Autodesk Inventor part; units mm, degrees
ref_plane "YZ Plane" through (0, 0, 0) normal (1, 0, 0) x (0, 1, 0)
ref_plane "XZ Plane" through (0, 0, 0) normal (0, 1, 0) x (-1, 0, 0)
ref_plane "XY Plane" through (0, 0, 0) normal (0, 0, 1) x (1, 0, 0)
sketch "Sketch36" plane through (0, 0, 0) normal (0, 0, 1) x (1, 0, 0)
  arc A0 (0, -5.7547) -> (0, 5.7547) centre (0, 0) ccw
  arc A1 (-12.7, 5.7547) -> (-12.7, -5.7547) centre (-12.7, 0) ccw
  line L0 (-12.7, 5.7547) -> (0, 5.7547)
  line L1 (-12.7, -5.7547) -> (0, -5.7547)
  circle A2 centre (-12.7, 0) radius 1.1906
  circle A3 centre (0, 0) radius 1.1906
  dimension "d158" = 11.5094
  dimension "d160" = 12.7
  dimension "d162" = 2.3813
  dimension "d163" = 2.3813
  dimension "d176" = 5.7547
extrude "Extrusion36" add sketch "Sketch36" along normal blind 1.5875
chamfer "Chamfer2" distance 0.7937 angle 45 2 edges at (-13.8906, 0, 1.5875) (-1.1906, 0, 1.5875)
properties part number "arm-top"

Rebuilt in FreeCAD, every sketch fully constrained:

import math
import FreeCAD as App
import Part
import Sketcher
Q = App.Units.Quantity


def edges_at(feature, points):
    """Names of the edges that pass closest to the given points."""
    edges = feature.Shape.Edges
    near = lambda p: min(range(len(edges)), key=lambda i: edges[i].distToShape(Part.Vertex(*p))[0])
    return sorted({f"Edge{near(p) + 1}" for p in points})

doc = App.newDocument("Part")
body = doc.addObject("PartDesign::Body", "Body")

sketch1 = body.newObject("Sketcher::SketchObject", "Sketch")
sketch1.AttachmentSupport = (doc.getObject("XY_Plane"), [""])
sketch1.MapMode = "FlatFace"
sketch1.addGeometry([
    Part.LineSegment(App.Vector(-12.7, -5.7547, 0), App.Vector(0, -5.7547, 0)),
    Part.ArcOfCircle(Part.Circle(App.Vector(0, 0, 0), App.Vector(0, 0, 1), 5.7547), math.radians(-90), math.radians(90)),
    Part.LineSegment(App.Vector(0, 5.7547, 0), App.Vector(-12.7, 5.7547, 0)),
    Part.ArcOfCircle(Part.Circle(App.Vector(-12.7, 0, 0), App.Vector(0, 0, 1), 5.7547), math.radians(90), math.radians(270)),
    Part.Circle(App.Vector(-12.7, 0, 0), App.Vector(0, 0, 1), 1.1906),
    Part.Circle(App.Vector(0, 0, 0), App.Vector(0, 0, 1), 1.1906),
], False)
sketch1.addConstraint([
    Sketcher.Constraint("Tangent", 0, 2, 1, 1),
    Sketcher.Constraint("Tangent", 1, 2, 2, 1),
    Sketcher.Constraint("Tangent", 2, 2, 3, 1),
    Sketcher.Constraint("Tangent", 3, 2, 0, 1),
    Sketcher.Constraint("Horizontal", 0),
    Sketcher.Constraint("Horizontal", 2),
    Sketcher.Constraint("Coincident", 1, 3, -1, 1),
    Sketcher.Constraint("Coincident", 5, 3, -1, 1),
    Sketcher.Constraint("Coincident", 4, 3, 3, 3),
    Sketcher.Constraint("Equal", 4, 5),
    Sketcher.Constraint("Diameter", 4, Q("0.093748 in")),
    Sketcher.Constraint("DistanceX", 0, 1, 0, 2, Q("0.5 in")),
    Sketcher.Constraint("Radius", 1, 5.7547),
])
pad1 = body.newObject("PartDesign::Pad", "Pad")
pad1.Profile = sketch1
pad1.Length = Q("0.0625 in")
doc.recompute()

chamfer = body.newObject("PartDesign::Chamfer", "Chamfer")
chamfer.Base = (pad1, edges_at(pad1, [(-13.891, 0, 1.587), (-1.191, 0, 1.587)]))
chamfer.Size = Q("0.031248 in")

doc.recompute()
